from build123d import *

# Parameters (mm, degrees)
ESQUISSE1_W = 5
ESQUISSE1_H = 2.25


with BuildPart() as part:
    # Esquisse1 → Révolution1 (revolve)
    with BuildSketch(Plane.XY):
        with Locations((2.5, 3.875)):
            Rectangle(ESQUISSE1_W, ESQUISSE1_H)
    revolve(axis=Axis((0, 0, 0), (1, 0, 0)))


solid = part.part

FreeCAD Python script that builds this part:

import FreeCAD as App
import Part
import Sketcher

V = App.Vector
Q = App.Units.Quantity

doc = App.newDocument("Part")
params = doc.addObject("Spreadsheet::Sheet", "Params")
for row, (alias, value) in enumerate([
    ("sketch1_width", "5 mm"),
    ("sketch1_height", "2.25 mm"),
    ("revolution_angle", "360 deg"),
], start=1):
    params.set(f"A{row}", alias)
    params.set(f"B{row}", "=" + value)
    params.setAlias(f"B{row}", alias)

body = doc.addObject("PartDesign::Body", "Body")

# Sketch on XY plane
sketch1 = body.newObject("Sketcher::SketchObject", "Sketch")
sketch1.AttachmentSupport = (doc.getObject("XY_Plane"), [""])
sketch1.MapMode = "FlatFace"
sketch1.addGeometry([
    Part.LineSegment(V(0, 5, 0), V(0, 2.8, 0)),
    Part.LineSegment(V(0, 2.8, 0), V(5, 2.8, 0)),
    Part.LineSegment(V(5, 2.8, 0), V(5, 5, 0)),
    Part.LineSegment(V(5, 5, 0), V(0, 5, 0)),
], False)
sketch1.addConstraint([
    Sketcher.Constraint("Coincident", 0, 2, 1, 1),
    Sketcher.Constraint("Coincident", 1, 2, 2, 1),
    Sketcher.Constraint("Coincident", 2, 2, 3, 1),
    Sketcher.Constraint("Coincident", 3, 2, 0, 1),
    Sketcher.Constraint("Vertical", 0),
    Sketcher.Constraint("Horizontal", 1),
    Sketcher.Constraint("Vertical", 2),
    Sketcher.Constraint("Horizontal", 3),
    Sketcher.Constraint("PointOnObject", 0, 2, -2),
    Sketcher.Constraint("DistanceX", 1, 1, 1, 2, Q("5 mm")),
    Sketcher.Constraint("DistanceY", -1, 1, 2, 2, Q("5 mm")),
    Sketcher.Constraint("DistanceY", 0, 2, 0, 1, Q("2.25 mm")),
])
sketch1.setExpression("Constraints[9]", "Params.sketch1_width")
sketch1.setExpression("Constraints[11]", "Params.sketch1_height")
revolution = body.newObject("PartDesign::Revolution", "Revolution")
revolution.Profile = sketch1
revolution.ReferenceAxis = (sketch1, ["H_Axis"])
revolution.setExpression("Angle", "Params.revolution_angle")

doc.recompute()
